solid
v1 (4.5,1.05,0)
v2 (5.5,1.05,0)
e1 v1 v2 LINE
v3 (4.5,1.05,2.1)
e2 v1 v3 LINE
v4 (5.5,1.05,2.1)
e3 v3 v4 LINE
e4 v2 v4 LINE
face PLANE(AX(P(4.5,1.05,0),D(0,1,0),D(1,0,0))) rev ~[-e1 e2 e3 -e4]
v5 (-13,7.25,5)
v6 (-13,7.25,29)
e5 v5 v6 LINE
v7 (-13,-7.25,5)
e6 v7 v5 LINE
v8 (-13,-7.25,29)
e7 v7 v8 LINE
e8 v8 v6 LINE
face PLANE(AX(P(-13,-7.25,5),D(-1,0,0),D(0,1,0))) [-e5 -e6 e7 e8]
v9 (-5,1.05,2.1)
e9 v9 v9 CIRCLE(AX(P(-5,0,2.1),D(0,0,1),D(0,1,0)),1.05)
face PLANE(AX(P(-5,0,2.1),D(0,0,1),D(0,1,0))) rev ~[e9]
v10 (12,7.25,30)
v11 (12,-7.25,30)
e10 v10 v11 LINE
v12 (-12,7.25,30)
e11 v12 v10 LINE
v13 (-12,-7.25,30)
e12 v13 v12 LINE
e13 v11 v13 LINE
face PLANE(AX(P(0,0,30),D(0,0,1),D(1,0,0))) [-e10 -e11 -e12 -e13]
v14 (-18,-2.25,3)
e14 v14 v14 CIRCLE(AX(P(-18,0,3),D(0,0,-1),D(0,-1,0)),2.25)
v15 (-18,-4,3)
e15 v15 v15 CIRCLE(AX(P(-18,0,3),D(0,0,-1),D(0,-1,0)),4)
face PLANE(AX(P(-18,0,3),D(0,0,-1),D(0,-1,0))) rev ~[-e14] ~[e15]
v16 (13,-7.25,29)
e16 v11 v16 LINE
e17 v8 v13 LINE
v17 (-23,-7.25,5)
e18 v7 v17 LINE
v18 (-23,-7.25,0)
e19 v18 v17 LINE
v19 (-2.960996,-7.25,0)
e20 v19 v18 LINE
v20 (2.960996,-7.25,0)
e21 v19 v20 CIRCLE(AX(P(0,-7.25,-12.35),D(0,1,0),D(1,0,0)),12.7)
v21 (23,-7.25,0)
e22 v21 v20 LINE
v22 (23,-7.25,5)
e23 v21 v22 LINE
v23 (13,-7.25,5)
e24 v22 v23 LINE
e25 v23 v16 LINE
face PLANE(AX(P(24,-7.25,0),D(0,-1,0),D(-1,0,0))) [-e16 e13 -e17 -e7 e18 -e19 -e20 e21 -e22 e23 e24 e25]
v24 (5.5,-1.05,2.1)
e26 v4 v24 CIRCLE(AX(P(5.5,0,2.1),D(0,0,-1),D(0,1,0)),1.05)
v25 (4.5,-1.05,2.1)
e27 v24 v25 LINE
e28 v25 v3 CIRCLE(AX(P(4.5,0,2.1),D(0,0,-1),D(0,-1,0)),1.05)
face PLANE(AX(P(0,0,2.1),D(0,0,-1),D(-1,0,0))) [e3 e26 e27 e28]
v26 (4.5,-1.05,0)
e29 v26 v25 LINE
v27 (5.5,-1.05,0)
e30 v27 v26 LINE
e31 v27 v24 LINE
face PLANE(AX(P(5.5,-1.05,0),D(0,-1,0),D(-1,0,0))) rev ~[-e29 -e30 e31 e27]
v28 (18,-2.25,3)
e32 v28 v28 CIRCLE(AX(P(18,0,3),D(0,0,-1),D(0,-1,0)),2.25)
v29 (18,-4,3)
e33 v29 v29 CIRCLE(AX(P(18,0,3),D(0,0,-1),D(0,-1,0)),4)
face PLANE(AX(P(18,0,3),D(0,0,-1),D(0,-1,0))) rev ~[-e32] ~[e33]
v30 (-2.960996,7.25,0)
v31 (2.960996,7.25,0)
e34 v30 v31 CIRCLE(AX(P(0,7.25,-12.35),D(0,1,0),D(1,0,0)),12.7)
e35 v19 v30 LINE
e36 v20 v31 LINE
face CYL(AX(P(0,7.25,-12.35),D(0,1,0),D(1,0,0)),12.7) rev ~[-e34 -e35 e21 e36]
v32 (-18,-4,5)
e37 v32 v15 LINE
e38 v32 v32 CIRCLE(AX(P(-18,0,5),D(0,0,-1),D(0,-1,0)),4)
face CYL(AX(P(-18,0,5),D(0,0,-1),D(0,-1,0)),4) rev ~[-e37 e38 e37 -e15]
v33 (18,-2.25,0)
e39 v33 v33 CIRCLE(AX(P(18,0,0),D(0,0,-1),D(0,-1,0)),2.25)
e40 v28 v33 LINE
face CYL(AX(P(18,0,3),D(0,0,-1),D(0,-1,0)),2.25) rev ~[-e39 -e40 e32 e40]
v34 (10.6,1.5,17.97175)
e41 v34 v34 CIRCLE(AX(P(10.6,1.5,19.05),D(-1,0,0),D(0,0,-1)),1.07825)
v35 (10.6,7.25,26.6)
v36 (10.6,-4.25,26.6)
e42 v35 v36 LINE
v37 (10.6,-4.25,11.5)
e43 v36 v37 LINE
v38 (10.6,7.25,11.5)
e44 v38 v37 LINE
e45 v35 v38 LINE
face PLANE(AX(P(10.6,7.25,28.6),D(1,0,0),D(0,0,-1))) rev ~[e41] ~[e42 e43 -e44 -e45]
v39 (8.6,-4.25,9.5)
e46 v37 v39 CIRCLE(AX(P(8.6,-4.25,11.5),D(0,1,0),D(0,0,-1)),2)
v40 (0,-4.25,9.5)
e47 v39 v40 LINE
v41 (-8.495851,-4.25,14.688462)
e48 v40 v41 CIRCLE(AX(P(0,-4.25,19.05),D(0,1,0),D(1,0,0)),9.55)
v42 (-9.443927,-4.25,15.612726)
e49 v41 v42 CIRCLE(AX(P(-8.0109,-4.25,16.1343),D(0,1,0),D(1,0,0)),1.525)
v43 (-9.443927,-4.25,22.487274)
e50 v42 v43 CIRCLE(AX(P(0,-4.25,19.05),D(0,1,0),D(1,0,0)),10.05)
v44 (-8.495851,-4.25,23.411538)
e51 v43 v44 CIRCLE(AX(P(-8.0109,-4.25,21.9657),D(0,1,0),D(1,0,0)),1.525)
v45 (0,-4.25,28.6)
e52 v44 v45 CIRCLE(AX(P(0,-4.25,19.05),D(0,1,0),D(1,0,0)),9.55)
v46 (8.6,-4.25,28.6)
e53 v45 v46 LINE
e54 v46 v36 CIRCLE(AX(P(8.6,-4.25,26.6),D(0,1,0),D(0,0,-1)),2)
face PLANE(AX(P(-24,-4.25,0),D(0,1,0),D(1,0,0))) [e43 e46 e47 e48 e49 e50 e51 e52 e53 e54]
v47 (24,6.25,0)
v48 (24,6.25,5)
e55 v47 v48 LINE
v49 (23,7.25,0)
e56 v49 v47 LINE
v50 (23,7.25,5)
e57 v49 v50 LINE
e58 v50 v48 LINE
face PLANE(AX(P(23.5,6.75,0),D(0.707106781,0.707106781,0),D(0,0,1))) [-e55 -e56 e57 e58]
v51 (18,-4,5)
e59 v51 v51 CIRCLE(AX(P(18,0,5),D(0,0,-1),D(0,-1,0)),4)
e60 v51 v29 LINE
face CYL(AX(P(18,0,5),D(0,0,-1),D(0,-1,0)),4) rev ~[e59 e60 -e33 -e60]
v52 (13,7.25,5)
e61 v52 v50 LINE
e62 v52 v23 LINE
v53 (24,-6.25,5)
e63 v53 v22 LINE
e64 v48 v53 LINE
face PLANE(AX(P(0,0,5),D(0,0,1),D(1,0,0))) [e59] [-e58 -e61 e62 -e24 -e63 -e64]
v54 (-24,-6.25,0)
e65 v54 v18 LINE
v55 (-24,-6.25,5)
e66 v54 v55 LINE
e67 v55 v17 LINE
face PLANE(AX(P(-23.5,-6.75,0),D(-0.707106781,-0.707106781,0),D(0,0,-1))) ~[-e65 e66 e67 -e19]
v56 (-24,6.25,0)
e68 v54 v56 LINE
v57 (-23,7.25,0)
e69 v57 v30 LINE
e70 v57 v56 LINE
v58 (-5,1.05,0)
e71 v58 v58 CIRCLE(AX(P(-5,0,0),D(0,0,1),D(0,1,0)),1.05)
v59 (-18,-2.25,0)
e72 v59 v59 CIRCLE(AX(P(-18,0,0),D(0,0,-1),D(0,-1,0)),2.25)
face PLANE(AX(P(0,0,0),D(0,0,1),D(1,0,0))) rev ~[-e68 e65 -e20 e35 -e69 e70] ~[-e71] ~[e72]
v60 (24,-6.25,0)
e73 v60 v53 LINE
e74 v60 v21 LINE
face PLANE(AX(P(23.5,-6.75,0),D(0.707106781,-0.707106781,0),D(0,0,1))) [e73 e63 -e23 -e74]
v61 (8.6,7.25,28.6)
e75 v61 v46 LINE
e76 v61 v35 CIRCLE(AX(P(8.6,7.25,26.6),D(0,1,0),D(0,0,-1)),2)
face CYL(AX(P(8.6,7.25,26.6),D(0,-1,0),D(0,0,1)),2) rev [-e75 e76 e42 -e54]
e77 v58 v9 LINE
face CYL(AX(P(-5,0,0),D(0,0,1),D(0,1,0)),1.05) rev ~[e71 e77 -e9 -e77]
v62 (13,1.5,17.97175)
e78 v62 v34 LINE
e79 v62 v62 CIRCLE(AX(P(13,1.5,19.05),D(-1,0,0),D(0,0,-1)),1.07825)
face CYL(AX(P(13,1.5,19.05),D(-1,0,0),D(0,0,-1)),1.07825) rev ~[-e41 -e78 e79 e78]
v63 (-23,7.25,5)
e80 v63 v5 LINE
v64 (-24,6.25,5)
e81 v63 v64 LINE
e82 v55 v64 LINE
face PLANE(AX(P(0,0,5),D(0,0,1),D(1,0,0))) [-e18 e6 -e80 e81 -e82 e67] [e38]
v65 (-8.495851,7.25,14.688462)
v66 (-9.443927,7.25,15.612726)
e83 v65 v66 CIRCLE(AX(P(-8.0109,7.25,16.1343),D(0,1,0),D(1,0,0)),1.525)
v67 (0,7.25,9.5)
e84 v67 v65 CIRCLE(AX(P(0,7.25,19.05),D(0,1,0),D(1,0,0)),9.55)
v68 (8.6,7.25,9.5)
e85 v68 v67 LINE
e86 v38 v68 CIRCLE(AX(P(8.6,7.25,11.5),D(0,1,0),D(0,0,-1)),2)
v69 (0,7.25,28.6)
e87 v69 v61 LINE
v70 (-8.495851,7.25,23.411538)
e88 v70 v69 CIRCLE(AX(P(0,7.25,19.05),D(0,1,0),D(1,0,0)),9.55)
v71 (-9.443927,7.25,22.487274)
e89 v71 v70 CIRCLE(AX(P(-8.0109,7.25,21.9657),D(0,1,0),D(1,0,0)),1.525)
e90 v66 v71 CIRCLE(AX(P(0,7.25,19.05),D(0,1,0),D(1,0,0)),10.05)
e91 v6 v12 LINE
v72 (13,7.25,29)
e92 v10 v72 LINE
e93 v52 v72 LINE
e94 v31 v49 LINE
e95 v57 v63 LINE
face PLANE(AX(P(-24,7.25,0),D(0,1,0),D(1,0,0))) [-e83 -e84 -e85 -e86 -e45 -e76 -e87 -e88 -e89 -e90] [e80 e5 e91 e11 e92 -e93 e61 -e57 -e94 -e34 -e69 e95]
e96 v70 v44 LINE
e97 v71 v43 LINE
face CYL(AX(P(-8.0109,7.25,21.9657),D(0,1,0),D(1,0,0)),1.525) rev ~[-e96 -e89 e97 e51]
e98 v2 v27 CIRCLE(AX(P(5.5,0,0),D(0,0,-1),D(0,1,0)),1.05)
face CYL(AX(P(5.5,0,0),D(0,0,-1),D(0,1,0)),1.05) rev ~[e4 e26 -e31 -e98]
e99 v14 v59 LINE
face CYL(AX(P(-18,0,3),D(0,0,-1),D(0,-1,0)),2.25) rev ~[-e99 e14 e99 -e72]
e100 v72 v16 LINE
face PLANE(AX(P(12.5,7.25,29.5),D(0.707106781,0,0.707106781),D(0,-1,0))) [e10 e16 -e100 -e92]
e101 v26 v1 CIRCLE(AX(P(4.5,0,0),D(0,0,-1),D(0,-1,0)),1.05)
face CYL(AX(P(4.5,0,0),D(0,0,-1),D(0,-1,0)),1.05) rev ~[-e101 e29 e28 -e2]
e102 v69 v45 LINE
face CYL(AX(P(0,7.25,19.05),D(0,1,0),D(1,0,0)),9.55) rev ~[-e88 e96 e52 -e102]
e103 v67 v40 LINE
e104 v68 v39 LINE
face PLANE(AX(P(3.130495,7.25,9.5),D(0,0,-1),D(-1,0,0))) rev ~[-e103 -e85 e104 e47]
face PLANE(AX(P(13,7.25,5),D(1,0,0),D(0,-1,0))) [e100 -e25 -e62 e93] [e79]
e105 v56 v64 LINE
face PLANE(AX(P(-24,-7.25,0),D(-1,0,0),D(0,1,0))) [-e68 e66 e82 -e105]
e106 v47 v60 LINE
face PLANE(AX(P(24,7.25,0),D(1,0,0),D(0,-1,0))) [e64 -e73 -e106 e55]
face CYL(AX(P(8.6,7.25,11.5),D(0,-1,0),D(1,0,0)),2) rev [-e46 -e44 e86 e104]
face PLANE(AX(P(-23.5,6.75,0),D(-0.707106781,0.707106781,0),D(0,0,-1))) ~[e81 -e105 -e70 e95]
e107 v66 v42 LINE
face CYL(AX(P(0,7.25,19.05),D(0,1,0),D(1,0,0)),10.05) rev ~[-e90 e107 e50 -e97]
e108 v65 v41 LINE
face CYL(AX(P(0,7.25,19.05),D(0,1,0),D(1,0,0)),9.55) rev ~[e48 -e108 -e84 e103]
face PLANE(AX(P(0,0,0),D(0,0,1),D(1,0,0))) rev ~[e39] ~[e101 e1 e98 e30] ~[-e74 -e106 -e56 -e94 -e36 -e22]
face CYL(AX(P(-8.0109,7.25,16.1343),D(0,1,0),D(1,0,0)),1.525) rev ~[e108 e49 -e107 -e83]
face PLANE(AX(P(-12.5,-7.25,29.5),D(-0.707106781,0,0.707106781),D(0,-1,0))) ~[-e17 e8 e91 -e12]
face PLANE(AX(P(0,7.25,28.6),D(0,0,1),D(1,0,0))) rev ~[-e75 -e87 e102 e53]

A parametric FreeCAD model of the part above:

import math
import FreeCAD as App
import Part
import Sketcher

V = App.Vector


def edges_at(feature, points):
    """Names of the edges that pass closest to the given points."""
    edges = feature.Shape.Edges
    near = lambda p: min(range(len(edges)), key=lambda i: edges[i].distToShape(Part.Vertex(*p))[0])
    return sorted({f"Edge{near(p) + 1}" for p in points})


def add_polygon(sketch, points):
    """Adds a closed chain of lines whose ends are joined by coincident constraints."""
    first, n = sketch.GeometryCount, len(points)
    for a, b in zip(points, points[1:] + points[:1]):
        sketch.addGeometry(Part.LineSegment(App.Vector(*a, 0), App.Vector(*b, 0)), False)
    for i in range(n):
        sketch.addConstraint(Sketcher.Constraint("Coincident", first + i, 2, first + (i + 1) % n, 1))

doc = App.newDocument("Part")
params = doc.addObject("Spreadsheet::Sheet", "Params")
for row, (alias, value) in enumerate([
    ("sketch1_width", "48 mm"),
    ("sketch1_height", "14.5 mm"),
    ("pad1_length", "5 mm"),
    ("sketch2_diameter", "4.5 mm"),
    ("hole_diameter", "4.5 mm"),
    ("hole_depth", "5 mm"),
    ("hole_cbore_diameter", "8 mm"),
    ("hole_cbore_depth", "2 mm"),
    ("sketch3_width", "26 mm"),
    ("sketch3_height", "14.5 mm"),
    ("pad2_length", "25 mm"),
    ("sketch4_radius", "9.55 mm"),
    ("sketch4_radius2", "10.05 mm"),
    ("sketch4_width", "10.6 mm"),
    ("pocket1_length", "11.5 mm"),
    ("fillet_radius", "2 mm"),
    ("hole2_diameter", "2.1565 mm"),
    ("hole2_depth", "2.4 mm"),
    ("chamfer_size", "1 mm"),
    ("sketch6_diameter", "2.1 mm"),
    ("hole3_diameter", "2.1 mm"),
    ("hole3_depth", "2.1 mm"),
    ("sketch7_width", "1 mm"),
    ("sketch7_radius", "1.05 mm"),
    ("pocket2_length", "2.1 mm"),
    ("sketch8_diameter", "25.4 mm"),
    ("pocket3_length", "14.5 mm"),
], start=1):
    params.set(f"A{row}", alias)
    params.set(f"B{row}", "=" + value)
    params.setAlias(f"B{row}", alias)

body = doc.addObject("PartDesign::Body", "Body")

# Sketch on XY plane
sketch1 = body.newObject("Sketcher::SketchObject", "Sketch")
sketch1.AttachmentSupport = (doc.getObject("XY_Plane"), [""])
sketch1.MapMode = "FlatFace"
add_polygon(sketch1, [(24, 7), (-24, 7), (-24, -7), (24, -7)])  # lines 0-3
sketch1.addConstraint([
    Sketcher.Constraint("Horizontal", 0),
    Sketcher.Constraint("Vertical", 1),
    Sketcher.Constraint("Horizontal", 2),
    Sketcher.Constraint("Vertical", 3),
    Sketcher.Constraint("Symmetric", 0, 2, 2, 2, -1, 1),
    Sketcher.Constraint("DistanceX", 0, 2, 0, 1, 48.0),
    Sketcher.Constraint("DistanceY", 1, 2, 1, 1, 14.5),
])
sketch1.setExpression("Constraints[9]", "Params.sketch1_width")
sketch1.setExpression("Constraints[10]", "Params.sketch1_height")
pad1 = body.newObject("PartDesign::Pad", "Pad")
pad1.Profile = sketch1
pad1.setExpression("Length", "Params.pad1_length")

# Sketch on XY plane
sketch2 = body.newObject("Sketcher::SketchObject", "Sketch001")
sketch2.AttachmentSupport = (doc.getObject("XY_Plane"), [""])
sketch2.MapMode = "FlatFace"
sketch2.AttachmentOffset = App.Placement(V(0, 0, 5), App.Rotation())
sketch2.addGeometry([
    Part.Circle(V(-18, 0, 0), V(0, 0, 1), 2.2),
    Part.Circle(V(18, 0, 0), V(0, 0, 1), 2.2),
], False)
sketch2.addConstraint([
    Sketcher.Constraint("Equal", 0, 1),
    Sketcher.Constraint("Symmetric", 0, 3, 1, 3, -1, 1),
    Sketcher.Constraint("PointOnObject", 0, 3, -1),
    Sketcher.Constraint("Diameter", 0, 4.5),
    Sketcher.Constraint("DistanceX", 0, 3, -1, 1, 18.0),
])
sketch2.setExpression("Constraints[3]", "Params.sketch2_diameter")
doc.recompute()
hole = body.newObject("PartDesign::Hole", "Hole")
hole.Profile = sketch2
hole.ThreadType = "None"
hole.setExpression("Diameter", "Params.hole_diameter")
hole.DepthType = "Dimension"
hole.setExpression("Depth", "Params.hole_depth")
hole.DrillPoint = "Flat"
hole.HoleCutType = "Counterbore"
hole.setExpression("HoleCutDiameter", "Params.hole_cbore_diameter")
hole.setExpression("HoleCutDepth", "Params.hole_cbore_depth")

# Sketch on XY plane
sketch3 = body.newObject("Sketcher::SketchObject", "Sketch002")
sketch3.AttachmentSupport = (doc.getObject("XY_Plane"), [""])
sketch3.MapMode = "FlatFace"
sketch3.AttachmentOffset = App.Placement(V(0, 0, 5), App.Rotation())
add_polygon(sketch3, [(13, 7), (-13, 7), (-13, -7), (13, -7)])  # lines 0-3
sketch3.addConstraint([
    Sketcher.Constraint("Horizontal", 0),
    Sketcher.Constraint("Vertical", 1),
    Sketcher.Constraint("Horizontal", 2),
    Sketcher.Constraint("Vertical", 3),
    Sketcher.Constraint("Symmetric", 0, 2, 2, 2, -1, 1),
    Sketcher.Constraint("DistanceX", 0, 2, 0, 1, 26.0),
    Sketcher.Constraint("DistanceY", 1, 2, 1, 1, 14.5),
])
sketch3.setExpression("Constraints[9]", "Params.sketch3_width")
sketch3.setExpression("Constraints[10]", "Params.sketch3_height")
pad2 = body.newObject("PartDesign::Pad", "Pad001")
pad2.Profile = sketch3
pad2.setExpression("Length", "Params.pad2_length")

# Sketch on XZ plane
sketch4 = body.newObject("Sketcher::SketchObject", "Sketch003")
sketch4.AttachmentSupport = (doc.getObject("XZ_Plane"), [""])
sketch4.MapMode = "FlatFace"
sketch4.AttachmentOffset = App.Placement(V(0, 0, -7.25), App.Rotation())
sketch4.addGeometry([
    Part.LineSegment(V(0, 28.6, 0), V(10.6, 28.6, 0)),  # 0
    Part.LineSegment(V(10.6, 28.6, 0), V(10.6, 9.5, 0)),  # 1
    Part.LineSegment(V(10.6, 9.5, 0), V(0, 9.5, 0)),  # 2
    Part.ArcOfCircle(Part.Circle(V(0, 19.1, 0), V(0, 0, 1), 9.6), math.radians(-153), math.radians(-90)),  # 3
    Part.ArcOfCircle(Part.Circle(V(-8, 16.1, 0), V(0, 0, 1), 1.5), math.radians(-160), math.radians(-109)),  # 4
    Part.ArcOfCircle(Part.Circle(V(0, 19.1, 0), V(0, 0, 1), 10.1), math.radians(160), math.radians(200)),  # 5
    Part.ArcOfCircle(Part.Circle(V(-8, 22, 0), V(0, 0, 1), 1.5), math.radians(109), math.radians(160)),  # 6
    Part.ArcOfCircle(Part.Circle(V(0, 19.1, 0), V(0, 0, 1), 9.6), math.radians(90), math.radians(153)),  # 7
], False)
sketch4.addConstraint([
    Sketcher.Constraint("Coincident", 0, 2, 1, 1),
    Sketcher.Constraint("Coincident", 1, 2, 2, 1),
    Sketcher.Constraint("Tangent", 2, 2, 3, 2),
    Sketcher.Constraint("Coincident", 3, 1, 4, 2),
    Sketcher.Constraint("Tangent", 4, 1, 5, 2),
    Sketcher.Constraint("Tangent", 5, 1, 6, 2),
    Sketcher.Constraint("Coincident", 6, 1, 7, 2),
    Sketcher.Constraint("Tangent", 7, 1, 0, 1),
    Sketcher.Constraint("Horizontal", 0),
    Sketcher.Constraint("Vertical", 1),
    Sketcher.Constraint("Horizontal", 2),
    Sketcher.Constraint("Coincident", 5, 3, 3, 3),
    Sketcher.Constraint("Coincident", 7, 3, 3, 3),
    Sketcher.Constraint("Equal", 4, 6),
    Sketcher.Constraint("Equal", 3, 7),
    Sketcher.Constraint("PointOnObject", 3, 3, -2),
    Sketcher.Constraint("Vertical", 4, 3, 6, 3),
    Sketcher.Constraint("Radius", 3, 9.55),
    Sketcher.Constraint("Radius", 5, 10.05),
    Sketcher.Constraint("DistanceX", 0, 1, 0, 2, 10.6),
    Sketcher.Constraint("Radius", 4, 1.525),
    Sketcher.Constraint("DistanceY", -1, 1, 3, 3, 19.05),
    Sketcher.Constraint("DistanceX", 4, 3, -1, 1, 8.011),
])
sketch4.setExpression("Constraints[17]", "Params.sketch4_radius")
sketch4.setExpression("Constraints[18]", "Params.sketch4_radius2")
sketch4.setExpression("Constraints[19]", "Params.sketch4_width")
pocket1 = body.newObject("PartDesign::Pocket", "Pocket")
pocket1.Profile = sketch4
pocket1.setExpression("Length", "Params.pocket1_length")
pocket1.Reversed = True
doc.recompute()

fillet = body.newObject("PartDesign::Fillet", "Fillet")
fillet.Base = (pocket1, edges_at(pocket1, [(10.6, 1.5, 28.6), (10.6, 1.5, 9.5)]))
fillet.setExpression("Radius", "Params.fillet_radius")

# Sketch on YZ plane
sketch5 = body.newObject("Sketcher::SketchObject", "Sketch004")
sketch5.AttachmentSupport = (doc.getObject("YZ_Plane"), [""])
sketch5.MapMode = "FlatFace"
sketch5.AttachmentOffset = App.Placement(V(0, 0, 13), App.Rotation())
sketch5.addGeometry(Part.Circle(V(1.5, 19.1, 0), V(0, 0, 1), 1.1), False)
sketch5.addConstraint([
    Sketcher.Constraint("Diameter", 0, 2.1565),
    Sketcher.Constraint("DistanceX", -1, 1, 0, 3, 1.5),
    Sketcher.Constraint("DistanceY", -1, 1, 0, 3, 19.05),
])
doc.recompute()
hole2 = body.newObject("PartDesign::Hole", "Hole001")
hole2.Profile = sketch5
hole2.ThreadType = "None"
hole2.setExpression("Diameter", "Params.hole2_diameter")
hole2.DepthType = "Dimension"
hole2.setExpression("Depth", "Params.hole2_depth")
hole2.DrillPoint = "Flat"
doc.recompute()

chamfer = body.newObject("PartDesign::Chamfer", "Chamfer")
chamfer.Base = (hole2, edges_at(hole2, [
    (13, 0, 30),
    (-13, 0, 30),
    (-24, 7.25, 2.5),
    (-24, -7.25, 2.5),
    (24, 7.25, 2.5),
    (24, -7.25, 2.5),
]))
chamfer.setExpression("Size", "Params.chamfer_size")

# Sketch on XY plane
sketch6 = body.newObject("Sketcher::SketchObject", "Sketch005")
sketch6.AttachmentSupport = (doc.getObject("XY_Plane"), [""])
sketch6.MapMode = "FlatFace"
sketch6.addGeometry(Part.Circle(V(-5, 0, 0), V(0, 0, 1), 1.1), False)
sketch6.addConstraint([
    Sketcher.Constraint("PointOnObject", 0, 3, -1),
    Sketcher.Constraint("Diameter", 0, 2.1),
    Sketcher.Constraint("DistanceX", 0, 3, -1, 1, 5.0),
])
sketch6.setExpression("Constraints[1]", "Params.sketch6_diameter")
doc.recompute()
hole3 = body.newObject("PartDesign::Hole", "Hole002")
hole3.Profile = sketch6
hole3.ThreadType = "None"
hole3.setExpression("Diameter", "Params.hole3_diameter")
hole3.DepthType = "Dimension"
hole3.setExpression("Depth", "Params.hole3_depth")
hole3.DrillPoint = "Flat"
hole3.Reversed = True

# Sketch on XY plane
sketch7 = body.newObject("Sketcher::SketchObject", "Sketch006")
sketch7.AttachmentSupport = (doc.getObject("XY_Plane"), [""])
sketch7.MapMode = "FlatFace"
sketch7.addGeometry([
    Part.ArcOfCircle(Part.Circle(V(5.5, 0, 0), V(0, 0, 1), 1.1), math.radians(-90), math.radians(90)),
    Part.LineSegment(V(5.5, -1.1, 0), V(4.5, -1.1, 0)),
    Part.ArcOfCircle(Part.Circle(V(4.5, 0, 0), V(0, 0, 1), 1.1), math.radians(90), math.radians(270)),
    Part.LineSegment(V(4.5, 1.1, 0), V(5.5, 1.1, 0)),
], False)
sketch7.addConstraint([
    Sketcher.Constraint("Tangent", 0, 1, 1, 1),
    Sketcher.Constraint("Tangent", 1, 2, 2, 2),
    Sketcher.Constraint("Tangent", 2, 1, 3, 1),
    Sketcher.Constraint("Tangent", 3, 2, 0, 2),
    Sketcher.Constraint("Horizontal", 1),
    Sketcher.Constraint("Horizontal", 3),
    Sketcher.Constraint("PointOnObject", 0, 3, -1),
    Sketcher.Constraint("DistanceX", 1, 2, 1, 1, 1.0),
    Sketcher.Constraint("Radius", 0, 1.05),
    Sketcher.Constraint("DistanceX", -1, 1, 0, 3, 5.5),
])
sketch7.setExpression("Constraints[7]", "Params.sketch7_width")
sketch7.setExpression("Constraints[8]", "Params.sketch7_radius")
pocket2 = body.newObject("PartDesign::Pocket", "Pocket001")
pocket2.Profile = sketch7
pocket2.setExpression("Length", "Params.pocket2_length")
pocket2.Reversed = True

# Sketch on XZ plane
sketch8 = body.newObject("Sketcher::SketchObject", "Sketch007")
sketch8.AttachmentSupport = (doc.getObject("XZ_Plane"), [""])
sketch8.MapMode = "FlatFace"
sketch8.AttachmentOffset = App.Placement(V(0, 0, -7.25), App.Rotation())
sketch8.addGeometry(Part.Circle(V(0, -12, 0), V(0, 0, 1), 13), False)
sketch8.addConstraint([
    Sketcher.Constraint("PointOnObject", 0, 3, -2),
    Sketcher.Constraint("Diameter", 0, 25.4),
    Sketcher.Constraint("DistanceY", 0, 3, -1, 1, 12.35),
])
sketch8.setExpression("Constraints[1]", "Params.sketch8_diameter")
pocket3 = body.newObject("PartDesign::Pocket", "Pocket002")
pocket3.Profile = sketch8
pocket3.setExpression("Length", "Params.pocket3_length")
pocket3.Reversed = True

doc.recompute()
